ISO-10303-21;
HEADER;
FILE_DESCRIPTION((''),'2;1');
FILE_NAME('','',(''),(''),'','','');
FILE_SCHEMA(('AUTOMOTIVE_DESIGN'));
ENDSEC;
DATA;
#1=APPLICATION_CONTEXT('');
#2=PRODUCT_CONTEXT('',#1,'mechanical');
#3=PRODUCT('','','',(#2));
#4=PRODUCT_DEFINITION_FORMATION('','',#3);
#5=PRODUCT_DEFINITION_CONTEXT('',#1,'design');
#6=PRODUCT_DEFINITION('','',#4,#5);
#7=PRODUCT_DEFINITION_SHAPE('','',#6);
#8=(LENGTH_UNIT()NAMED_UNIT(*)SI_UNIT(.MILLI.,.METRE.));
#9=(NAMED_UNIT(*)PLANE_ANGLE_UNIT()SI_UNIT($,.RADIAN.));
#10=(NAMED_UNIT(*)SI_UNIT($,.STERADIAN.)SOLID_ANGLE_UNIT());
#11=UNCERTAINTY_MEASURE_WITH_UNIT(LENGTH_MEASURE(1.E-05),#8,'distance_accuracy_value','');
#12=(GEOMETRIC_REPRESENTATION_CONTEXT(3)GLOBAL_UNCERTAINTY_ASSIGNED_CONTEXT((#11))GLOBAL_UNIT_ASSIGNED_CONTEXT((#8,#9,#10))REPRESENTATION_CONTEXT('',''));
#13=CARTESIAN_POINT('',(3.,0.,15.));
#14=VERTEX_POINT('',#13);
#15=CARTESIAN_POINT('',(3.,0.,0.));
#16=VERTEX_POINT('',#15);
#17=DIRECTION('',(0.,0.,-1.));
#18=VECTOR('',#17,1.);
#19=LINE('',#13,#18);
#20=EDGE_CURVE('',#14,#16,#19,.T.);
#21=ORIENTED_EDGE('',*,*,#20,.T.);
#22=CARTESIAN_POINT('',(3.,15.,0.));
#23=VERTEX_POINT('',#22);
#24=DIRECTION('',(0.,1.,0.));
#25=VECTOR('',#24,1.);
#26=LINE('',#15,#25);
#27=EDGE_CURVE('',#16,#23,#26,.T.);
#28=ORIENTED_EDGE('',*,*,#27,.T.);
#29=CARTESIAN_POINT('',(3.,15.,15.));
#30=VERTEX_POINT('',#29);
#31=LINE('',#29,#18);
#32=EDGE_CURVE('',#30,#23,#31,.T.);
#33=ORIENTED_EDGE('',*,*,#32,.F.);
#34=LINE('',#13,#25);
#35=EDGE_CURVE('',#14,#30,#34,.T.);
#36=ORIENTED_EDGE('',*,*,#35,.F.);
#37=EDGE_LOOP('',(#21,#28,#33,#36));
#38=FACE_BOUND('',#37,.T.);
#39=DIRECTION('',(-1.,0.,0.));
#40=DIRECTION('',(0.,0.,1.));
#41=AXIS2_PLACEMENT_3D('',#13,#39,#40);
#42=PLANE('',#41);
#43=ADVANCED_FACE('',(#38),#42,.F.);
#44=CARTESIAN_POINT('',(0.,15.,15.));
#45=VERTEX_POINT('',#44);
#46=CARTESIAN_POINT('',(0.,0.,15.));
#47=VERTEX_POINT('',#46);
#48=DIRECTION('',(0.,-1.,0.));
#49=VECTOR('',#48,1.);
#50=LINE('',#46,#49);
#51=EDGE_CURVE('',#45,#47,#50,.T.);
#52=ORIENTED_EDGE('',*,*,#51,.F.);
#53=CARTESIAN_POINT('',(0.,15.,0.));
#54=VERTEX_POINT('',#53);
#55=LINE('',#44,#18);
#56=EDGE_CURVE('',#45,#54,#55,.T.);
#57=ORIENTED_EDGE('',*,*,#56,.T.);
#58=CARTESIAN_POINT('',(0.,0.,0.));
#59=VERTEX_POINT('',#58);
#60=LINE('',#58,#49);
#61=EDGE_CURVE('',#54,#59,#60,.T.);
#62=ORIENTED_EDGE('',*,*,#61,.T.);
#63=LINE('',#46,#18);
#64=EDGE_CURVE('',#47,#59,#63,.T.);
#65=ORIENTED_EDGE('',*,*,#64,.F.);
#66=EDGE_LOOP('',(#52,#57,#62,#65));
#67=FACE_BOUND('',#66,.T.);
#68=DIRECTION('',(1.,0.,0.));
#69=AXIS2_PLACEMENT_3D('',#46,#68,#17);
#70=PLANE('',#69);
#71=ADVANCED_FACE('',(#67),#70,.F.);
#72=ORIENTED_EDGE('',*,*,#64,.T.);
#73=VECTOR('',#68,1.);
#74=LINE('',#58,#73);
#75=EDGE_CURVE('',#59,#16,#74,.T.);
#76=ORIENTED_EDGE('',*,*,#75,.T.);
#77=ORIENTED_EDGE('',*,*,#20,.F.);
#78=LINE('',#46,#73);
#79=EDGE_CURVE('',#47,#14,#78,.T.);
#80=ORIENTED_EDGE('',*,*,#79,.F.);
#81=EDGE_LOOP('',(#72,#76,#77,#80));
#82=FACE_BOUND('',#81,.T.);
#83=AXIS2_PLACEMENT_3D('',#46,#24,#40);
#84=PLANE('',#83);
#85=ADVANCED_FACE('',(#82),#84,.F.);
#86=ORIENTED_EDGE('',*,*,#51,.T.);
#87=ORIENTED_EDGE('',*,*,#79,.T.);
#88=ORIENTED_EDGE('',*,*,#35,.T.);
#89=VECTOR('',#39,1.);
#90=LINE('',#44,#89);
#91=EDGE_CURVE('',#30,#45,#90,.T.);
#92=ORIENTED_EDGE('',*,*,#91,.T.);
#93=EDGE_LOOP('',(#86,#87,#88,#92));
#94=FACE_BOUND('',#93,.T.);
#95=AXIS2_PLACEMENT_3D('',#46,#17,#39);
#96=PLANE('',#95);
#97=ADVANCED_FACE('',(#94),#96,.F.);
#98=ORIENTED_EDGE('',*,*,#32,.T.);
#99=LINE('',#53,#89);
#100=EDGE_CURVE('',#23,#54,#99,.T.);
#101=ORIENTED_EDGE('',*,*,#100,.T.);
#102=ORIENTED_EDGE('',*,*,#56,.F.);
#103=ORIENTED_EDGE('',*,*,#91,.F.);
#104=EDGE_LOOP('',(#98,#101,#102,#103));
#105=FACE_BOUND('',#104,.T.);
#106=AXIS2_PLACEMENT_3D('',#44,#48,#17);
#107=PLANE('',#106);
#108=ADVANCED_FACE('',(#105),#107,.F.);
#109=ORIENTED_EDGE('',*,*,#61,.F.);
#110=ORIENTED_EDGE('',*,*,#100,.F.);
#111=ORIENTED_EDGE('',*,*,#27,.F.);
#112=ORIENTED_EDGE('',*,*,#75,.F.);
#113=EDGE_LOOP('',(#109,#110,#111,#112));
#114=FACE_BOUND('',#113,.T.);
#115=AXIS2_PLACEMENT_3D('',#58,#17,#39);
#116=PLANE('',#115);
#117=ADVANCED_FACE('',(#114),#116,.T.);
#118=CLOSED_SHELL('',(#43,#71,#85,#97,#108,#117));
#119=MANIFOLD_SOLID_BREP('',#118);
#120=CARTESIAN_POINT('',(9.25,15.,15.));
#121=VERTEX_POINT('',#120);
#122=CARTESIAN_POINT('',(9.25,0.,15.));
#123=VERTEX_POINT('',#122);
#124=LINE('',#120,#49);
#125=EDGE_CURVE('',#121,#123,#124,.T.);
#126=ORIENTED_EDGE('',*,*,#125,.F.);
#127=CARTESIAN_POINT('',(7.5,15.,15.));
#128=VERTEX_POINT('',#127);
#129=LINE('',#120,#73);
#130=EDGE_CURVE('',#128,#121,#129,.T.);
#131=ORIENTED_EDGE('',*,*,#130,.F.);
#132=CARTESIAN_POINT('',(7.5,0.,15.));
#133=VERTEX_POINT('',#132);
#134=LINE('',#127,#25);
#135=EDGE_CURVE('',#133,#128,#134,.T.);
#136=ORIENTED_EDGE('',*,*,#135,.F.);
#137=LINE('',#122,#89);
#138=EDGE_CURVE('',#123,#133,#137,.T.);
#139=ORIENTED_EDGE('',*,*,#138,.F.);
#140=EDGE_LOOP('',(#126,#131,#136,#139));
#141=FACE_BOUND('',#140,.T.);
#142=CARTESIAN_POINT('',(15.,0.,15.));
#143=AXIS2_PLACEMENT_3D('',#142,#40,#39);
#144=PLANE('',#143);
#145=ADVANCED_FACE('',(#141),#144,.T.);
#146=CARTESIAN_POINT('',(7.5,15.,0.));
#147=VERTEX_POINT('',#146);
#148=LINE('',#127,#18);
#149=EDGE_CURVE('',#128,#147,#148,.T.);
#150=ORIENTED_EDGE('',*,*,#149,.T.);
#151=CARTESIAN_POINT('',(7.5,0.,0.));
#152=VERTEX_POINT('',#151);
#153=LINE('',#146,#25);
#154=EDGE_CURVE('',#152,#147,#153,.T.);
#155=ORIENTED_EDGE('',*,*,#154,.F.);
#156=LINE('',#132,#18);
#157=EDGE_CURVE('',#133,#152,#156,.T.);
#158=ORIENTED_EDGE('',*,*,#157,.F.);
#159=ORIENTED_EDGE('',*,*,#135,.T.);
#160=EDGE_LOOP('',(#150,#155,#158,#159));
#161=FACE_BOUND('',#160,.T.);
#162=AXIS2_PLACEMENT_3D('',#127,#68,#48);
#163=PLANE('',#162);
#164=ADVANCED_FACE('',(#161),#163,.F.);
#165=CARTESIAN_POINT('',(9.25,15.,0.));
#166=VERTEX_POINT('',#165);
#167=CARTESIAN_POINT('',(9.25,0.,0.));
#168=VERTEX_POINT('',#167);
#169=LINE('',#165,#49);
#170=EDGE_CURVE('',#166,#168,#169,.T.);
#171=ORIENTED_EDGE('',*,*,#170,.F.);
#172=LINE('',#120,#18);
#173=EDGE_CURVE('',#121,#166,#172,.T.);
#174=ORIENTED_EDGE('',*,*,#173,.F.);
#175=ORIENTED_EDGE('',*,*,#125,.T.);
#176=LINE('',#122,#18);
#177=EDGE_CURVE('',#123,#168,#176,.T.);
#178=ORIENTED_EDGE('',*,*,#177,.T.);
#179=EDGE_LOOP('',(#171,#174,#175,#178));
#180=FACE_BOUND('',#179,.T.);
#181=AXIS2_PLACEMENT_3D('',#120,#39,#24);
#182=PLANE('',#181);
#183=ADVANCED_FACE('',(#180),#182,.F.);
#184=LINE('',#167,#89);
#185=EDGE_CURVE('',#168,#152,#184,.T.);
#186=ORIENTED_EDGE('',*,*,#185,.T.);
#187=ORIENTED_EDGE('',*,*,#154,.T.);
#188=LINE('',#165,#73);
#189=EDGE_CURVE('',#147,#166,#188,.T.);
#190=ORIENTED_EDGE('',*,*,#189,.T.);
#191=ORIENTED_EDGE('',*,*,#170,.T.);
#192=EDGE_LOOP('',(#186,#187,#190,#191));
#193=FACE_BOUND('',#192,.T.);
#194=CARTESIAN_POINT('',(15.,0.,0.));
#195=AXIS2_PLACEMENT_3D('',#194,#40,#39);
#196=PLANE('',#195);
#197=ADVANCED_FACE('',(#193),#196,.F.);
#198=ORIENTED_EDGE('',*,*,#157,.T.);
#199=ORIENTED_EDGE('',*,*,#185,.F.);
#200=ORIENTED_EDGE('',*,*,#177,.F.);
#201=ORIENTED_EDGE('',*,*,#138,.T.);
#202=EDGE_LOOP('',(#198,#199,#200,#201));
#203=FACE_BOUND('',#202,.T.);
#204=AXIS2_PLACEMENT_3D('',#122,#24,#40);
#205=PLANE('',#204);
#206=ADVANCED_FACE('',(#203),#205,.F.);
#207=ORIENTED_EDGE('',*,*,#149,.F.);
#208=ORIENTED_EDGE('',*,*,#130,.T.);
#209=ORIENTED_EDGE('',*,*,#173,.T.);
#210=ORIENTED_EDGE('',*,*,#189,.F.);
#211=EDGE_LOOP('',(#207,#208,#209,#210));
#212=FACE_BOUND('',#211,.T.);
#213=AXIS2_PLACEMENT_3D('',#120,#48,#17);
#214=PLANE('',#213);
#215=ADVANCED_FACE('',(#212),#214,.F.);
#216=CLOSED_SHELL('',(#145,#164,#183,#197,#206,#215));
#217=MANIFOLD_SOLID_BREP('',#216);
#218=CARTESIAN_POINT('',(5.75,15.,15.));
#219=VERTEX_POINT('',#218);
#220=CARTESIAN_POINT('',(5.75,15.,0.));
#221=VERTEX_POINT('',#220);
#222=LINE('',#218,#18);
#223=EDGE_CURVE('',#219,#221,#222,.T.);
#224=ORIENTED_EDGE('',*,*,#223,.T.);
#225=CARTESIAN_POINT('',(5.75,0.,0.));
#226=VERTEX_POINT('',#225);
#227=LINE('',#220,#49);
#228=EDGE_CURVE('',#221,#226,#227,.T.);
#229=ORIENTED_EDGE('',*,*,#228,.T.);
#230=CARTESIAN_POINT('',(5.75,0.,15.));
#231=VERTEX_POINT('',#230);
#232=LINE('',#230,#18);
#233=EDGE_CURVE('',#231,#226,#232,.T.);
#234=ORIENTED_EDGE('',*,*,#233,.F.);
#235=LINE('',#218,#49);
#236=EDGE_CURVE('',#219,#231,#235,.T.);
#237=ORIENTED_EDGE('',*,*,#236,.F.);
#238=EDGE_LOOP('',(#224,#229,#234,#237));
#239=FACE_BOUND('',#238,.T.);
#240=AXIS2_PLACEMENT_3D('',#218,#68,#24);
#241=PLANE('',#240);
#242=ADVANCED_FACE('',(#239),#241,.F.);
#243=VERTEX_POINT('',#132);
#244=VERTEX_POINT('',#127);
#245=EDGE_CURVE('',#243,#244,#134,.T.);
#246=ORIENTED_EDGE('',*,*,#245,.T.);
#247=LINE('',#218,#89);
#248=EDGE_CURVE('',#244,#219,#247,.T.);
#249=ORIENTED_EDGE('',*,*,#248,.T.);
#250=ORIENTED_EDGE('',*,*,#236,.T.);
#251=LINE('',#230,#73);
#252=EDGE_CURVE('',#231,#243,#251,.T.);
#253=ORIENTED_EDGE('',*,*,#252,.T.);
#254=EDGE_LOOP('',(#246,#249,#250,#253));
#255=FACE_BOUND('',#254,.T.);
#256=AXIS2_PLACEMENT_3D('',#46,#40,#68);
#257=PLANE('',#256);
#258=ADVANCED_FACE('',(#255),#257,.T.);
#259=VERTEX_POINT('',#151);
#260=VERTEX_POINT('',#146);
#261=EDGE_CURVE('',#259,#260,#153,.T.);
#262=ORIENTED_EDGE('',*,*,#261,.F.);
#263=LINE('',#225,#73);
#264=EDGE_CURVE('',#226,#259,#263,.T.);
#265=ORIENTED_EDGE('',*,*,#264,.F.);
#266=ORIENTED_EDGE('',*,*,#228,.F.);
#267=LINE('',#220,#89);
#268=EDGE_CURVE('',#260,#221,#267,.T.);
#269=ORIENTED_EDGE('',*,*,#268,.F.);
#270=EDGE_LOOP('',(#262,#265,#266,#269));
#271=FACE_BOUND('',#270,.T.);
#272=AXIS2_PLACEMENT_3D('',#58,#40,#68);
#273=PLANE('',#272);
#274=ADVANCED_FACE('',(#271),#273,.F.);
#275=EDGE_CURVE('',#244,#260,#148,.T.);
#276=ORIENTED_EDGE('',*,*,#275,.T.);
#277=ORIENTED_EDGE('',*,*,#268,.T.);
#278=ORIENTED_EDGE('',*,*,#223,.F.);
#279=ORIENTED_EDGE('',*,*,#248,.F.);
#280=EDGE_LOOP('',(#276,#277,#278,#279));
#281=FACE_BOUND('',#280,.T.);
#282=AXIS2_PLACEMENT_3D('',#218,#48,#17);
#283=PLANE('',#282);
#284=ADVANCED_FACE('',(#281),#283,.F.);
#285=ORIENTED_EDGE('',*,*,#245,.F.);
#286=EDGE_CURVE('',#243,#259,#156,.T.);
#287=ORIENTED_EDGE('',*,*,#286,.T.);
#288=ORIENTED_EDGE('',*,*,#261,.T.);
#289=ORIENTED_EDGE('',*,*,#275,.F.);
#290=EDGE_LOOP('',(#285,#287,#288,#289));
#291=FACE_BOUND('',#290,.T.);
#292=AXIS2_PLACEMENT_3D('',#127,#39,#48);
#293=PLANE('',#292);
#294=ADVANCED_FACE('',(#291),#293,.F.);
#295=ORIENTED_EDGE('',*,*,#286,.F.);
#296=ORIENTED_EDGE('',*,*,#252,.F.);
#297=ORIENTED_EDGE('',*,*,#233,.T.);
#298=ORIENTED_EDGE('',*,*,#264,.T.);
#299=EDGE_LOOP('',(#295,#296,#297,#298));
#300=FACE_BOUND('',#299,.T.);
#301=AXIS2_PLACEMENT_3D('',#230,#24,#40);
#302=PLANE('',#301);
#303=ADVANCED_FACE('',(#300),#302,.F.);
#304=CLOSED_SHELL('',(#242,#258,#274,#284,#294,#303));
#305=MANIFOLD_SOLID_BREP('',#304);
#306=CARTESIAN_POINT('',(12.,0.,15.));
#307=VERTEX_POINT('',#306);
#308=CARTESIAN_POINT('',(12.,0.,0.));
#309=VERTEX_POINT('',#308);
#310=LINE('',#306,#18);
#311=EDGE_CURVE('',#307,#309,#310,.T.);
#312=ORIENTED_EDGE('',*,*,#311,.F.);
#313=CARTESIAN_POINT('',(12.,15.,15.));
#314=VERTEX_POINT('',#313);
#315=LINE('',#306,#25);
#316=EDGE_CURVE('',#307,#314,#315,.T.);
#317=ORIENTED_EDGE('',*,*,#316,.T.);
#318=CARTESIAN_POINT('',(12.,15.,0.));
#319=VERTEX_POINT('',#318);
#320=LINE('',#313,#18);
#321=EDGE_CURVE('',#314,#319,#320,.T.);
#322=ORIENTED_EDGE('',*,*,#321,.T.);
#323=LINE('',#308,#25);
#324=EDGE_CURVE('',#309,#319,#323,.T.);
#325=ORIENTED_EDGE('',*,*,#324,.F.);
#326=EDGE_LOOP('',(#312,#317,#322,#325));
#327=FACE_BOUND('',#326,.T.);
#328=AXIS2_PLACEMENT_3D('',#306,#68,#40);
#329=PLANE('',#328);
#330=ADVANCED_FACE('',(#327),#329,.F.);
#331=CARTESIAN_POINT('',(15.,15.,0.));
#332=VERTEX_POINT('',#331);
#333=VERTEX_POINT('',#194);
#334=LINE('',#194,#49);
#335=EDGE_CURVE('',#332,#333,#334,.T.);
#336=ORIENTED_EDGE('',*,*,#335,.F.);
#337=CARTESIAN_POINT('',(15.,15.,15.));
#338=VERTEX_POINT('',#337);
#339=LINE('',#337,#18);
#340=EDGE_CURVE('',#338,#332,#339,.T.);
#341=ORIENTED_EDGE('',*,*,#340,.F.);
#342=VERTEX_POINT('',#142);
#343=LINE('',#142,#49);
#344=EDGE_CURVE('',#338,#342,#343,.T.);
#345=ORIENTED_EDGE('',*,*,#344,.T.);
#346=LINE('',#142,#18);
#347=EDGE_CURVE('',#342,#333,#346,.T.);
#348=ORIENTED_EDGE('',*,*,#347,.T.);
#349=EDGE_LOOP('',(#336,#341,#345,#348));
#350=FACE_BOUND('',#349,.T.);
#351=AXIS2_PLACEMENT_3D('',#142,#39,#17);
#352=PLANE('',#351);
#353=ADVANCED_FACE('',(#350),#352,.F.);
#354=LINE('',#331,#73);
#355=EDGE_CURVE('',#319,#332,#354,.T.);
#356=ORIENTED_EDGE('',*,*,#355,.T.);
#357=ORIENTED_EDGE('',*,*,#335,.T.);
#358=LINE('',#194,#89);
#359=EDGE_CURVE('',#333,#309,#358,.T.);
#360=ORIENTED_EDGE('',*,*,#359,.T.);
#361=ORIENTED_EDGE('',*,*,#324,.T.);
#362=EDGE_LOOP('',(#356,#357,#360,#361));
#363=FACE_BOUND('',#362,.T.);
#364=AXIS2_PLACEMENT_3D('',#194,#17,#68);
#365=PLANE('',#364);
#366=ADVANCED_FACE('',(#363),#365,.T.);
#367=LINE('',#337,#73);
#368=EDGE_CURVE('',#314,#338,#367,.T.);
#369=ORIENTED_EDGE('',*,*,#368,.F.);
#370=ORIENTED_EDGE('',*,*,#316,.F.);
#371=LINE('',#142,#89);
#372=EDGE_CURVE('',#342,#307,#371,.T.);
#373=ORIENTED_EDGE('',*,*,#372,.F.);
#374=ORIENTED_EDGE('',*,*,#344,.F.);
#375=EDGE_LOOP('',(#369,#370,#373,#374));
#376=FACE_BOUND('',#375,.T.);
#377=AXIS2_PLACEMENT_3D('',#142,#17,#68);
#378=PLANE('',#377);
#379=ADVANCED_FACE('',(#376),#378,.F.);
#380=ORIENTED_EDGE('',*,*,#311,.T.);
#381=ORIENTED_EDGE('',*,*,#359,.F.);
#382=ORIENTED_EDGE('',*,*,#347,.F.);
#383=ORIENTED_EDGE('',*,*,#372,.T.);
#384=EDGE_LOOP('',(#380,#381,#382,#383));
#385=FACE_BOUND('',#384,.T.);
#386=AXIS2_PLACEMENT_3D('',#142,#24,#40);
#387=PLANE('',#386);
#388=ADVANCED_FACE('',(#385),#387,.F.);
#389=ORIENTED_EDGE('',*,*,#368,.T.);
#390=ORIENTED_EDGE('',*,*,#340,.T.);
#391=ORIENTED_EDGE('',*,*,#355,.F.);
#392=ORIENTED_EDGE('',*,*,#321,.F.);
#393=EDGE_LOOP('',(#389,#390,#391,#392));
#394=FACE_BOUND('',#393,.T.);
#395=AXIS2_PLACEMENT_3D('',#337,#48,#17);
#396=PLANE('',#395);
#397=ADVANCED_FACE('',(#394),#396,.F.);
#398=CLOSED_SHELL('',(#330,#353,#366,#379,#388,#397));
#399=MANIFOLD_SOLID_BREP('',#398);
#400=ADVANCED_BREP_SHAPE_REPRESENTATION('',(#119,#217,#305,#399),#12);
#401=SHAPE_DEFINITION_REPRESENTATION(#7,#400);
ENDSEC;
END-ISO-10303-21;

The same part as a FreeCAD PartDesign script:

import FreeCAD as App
import Part
import Sketcher


def add_polygon(sketch, points):
    """Adds a closed chain of lines whose ends are joined by coincident constraints."""
    first, n = sketch.GeometryCount, len(points)
    for a, b in zip(points, points[1:] + points[:1]):
        sketch.addGeometry(Part.LineSegment(App.Vector(*a, 0), App.Vector(*b, 0)), False)
    for i in range(n):
        sketch.addConstraint(Sketcher.Constraint("Coincident", first + i, 2, first + (i + 1) % n, 1))

doc = App.newDocument("Part")
params = doc.addObject("Spreadsheet::Sheet", "Params")
for row, (alias, value) in enumerate([
    ("sketch1_width", "3 mm"),
    ("sketch1_height", "15 mm"),
    ("pad1_length", "15 mm"),
    ("sketch2_height", "15 mm"),
    ("sketch2_width", "1.75 mm"),
    ("pad2_length", "15 mm"),
], start=1):
    params.set(f"A{row}", alias)
    params.set(f"B{row}", "=" + value)
    params.setAlias(f"B{row}", alias)

body = doc.addObject("PartDesign::Body", "Body")

# Sketch on XY plane
sketch1 = body.newObject("Sketcher::SketchObject", "Sketch")
sketch1.AttachmentSupport = (doc.getObject("XY_Plane"), [""])
sketch1.MapMode = "FlatFace"
add_polygon(sketch1, [(0, 15), (0, 0), (3, 0), (3, 15)])  # lines 0-3
sketch1.addConstraint([
    Sketcher.Constraint("Vertical", 0),
    Sketcher.Constraint("Horizontal", 1),
    Sketcher.Constraint("Vertical", 2),
    Sketcher.Constraint("Horizontal", 3),
    Sketcher.Constraint("Coincident", 0, 2, -1, 1),
    Sketcher.Constraint("DistanceX", 1, 1, 1, 2, 3.0),
    Sketcher.Constraint("DistanceY", 0, 2, 0, 1, 15.0),
])
sketch1.setExpression("Constraints[9]", "Params.sketch1_width")
sketch1.setExpression("Constraints[10]", "Params.sketch1_height")
pad1 = body.newObject("PartDesign::Pad", "Pad")
pad1.Profile = sketch1
pad1.setExpression("Length", "Params.pad1_length")
body2 = doc.addObject("PartDesign::Body", "Body001")

# Sketch on XY plane
sketch2 = body2.newObject("Sketcher::SketchObject", "Sketch001")
sketch2.AttachmentSupport = (doc.getObject("XY_Plane001"), [""])
sketch2.MapMode = "FlatFace"
add_polygon(sketch2, [(5.8, 15), (5.8, 0), (7.5, 0), (7.5, 15)])  # lines 0-3
sketch2.addConstraint([
    Sketcher.Constraint("Vertical", 0),
    Sketcher.Constraint("Horizontal", 1),
    Sketcher.Constraint("Vertical", 2),
    Sketcher.Constraint("Horizontal", 3),
    Sketcher.Constraint("PointOnObject", 0, 2, -1),
    Sketcher.Constraint("DistanceY", 0, 2, 0, 1, 15.0),
    Sketcher.Constraint("DistanceX", 1, 1, 1, 2, 1.75),
    Sketcher.Constraint("DistanceX", -1, 1, 1, 2, 7.5),
])
sketch2.setExpression("Constraints[9]", "Params.sketch2_height")
sketch2.setExpression("Constraints[10]", "Params.sketch2_width")
pad2 = body2.newObject("PartDesign::Pad", "Pad001")
pad2.Profile = sketch2
pad2.setExpression("Length", "Params.pad2_length")
body3 = doc.addObject("PartDesign::Body", "Body002")
doc.recompute()

mirroring = doc.addObject("Part::Mirroring", "Mirroring")
mirroring.Source = body2
mirroring.Base = App.Vector(7.5, 15, 15)
mirroring.Normal = App.Vector(-1, 0, 0)
body3.BaseFeature = mirroring
doc.recompute()
body4 = doc.addObject("PartDesign::Body", "Body003")
doc.recompute()

mirroring2 = doc.addObject("Part::Mirroring", "Mirroring001")
mirroring2.Source = body
mirroring2.Base = App.Vector(7.5, 15, 15)
mirroring2.Normal = App.Vector(-1, 0, 0)
body4.BaseFeature = mirroring2
doc.recompute()
mirroring.Visibility = False
mirroring2.Visibility = False

doc.recompute()
